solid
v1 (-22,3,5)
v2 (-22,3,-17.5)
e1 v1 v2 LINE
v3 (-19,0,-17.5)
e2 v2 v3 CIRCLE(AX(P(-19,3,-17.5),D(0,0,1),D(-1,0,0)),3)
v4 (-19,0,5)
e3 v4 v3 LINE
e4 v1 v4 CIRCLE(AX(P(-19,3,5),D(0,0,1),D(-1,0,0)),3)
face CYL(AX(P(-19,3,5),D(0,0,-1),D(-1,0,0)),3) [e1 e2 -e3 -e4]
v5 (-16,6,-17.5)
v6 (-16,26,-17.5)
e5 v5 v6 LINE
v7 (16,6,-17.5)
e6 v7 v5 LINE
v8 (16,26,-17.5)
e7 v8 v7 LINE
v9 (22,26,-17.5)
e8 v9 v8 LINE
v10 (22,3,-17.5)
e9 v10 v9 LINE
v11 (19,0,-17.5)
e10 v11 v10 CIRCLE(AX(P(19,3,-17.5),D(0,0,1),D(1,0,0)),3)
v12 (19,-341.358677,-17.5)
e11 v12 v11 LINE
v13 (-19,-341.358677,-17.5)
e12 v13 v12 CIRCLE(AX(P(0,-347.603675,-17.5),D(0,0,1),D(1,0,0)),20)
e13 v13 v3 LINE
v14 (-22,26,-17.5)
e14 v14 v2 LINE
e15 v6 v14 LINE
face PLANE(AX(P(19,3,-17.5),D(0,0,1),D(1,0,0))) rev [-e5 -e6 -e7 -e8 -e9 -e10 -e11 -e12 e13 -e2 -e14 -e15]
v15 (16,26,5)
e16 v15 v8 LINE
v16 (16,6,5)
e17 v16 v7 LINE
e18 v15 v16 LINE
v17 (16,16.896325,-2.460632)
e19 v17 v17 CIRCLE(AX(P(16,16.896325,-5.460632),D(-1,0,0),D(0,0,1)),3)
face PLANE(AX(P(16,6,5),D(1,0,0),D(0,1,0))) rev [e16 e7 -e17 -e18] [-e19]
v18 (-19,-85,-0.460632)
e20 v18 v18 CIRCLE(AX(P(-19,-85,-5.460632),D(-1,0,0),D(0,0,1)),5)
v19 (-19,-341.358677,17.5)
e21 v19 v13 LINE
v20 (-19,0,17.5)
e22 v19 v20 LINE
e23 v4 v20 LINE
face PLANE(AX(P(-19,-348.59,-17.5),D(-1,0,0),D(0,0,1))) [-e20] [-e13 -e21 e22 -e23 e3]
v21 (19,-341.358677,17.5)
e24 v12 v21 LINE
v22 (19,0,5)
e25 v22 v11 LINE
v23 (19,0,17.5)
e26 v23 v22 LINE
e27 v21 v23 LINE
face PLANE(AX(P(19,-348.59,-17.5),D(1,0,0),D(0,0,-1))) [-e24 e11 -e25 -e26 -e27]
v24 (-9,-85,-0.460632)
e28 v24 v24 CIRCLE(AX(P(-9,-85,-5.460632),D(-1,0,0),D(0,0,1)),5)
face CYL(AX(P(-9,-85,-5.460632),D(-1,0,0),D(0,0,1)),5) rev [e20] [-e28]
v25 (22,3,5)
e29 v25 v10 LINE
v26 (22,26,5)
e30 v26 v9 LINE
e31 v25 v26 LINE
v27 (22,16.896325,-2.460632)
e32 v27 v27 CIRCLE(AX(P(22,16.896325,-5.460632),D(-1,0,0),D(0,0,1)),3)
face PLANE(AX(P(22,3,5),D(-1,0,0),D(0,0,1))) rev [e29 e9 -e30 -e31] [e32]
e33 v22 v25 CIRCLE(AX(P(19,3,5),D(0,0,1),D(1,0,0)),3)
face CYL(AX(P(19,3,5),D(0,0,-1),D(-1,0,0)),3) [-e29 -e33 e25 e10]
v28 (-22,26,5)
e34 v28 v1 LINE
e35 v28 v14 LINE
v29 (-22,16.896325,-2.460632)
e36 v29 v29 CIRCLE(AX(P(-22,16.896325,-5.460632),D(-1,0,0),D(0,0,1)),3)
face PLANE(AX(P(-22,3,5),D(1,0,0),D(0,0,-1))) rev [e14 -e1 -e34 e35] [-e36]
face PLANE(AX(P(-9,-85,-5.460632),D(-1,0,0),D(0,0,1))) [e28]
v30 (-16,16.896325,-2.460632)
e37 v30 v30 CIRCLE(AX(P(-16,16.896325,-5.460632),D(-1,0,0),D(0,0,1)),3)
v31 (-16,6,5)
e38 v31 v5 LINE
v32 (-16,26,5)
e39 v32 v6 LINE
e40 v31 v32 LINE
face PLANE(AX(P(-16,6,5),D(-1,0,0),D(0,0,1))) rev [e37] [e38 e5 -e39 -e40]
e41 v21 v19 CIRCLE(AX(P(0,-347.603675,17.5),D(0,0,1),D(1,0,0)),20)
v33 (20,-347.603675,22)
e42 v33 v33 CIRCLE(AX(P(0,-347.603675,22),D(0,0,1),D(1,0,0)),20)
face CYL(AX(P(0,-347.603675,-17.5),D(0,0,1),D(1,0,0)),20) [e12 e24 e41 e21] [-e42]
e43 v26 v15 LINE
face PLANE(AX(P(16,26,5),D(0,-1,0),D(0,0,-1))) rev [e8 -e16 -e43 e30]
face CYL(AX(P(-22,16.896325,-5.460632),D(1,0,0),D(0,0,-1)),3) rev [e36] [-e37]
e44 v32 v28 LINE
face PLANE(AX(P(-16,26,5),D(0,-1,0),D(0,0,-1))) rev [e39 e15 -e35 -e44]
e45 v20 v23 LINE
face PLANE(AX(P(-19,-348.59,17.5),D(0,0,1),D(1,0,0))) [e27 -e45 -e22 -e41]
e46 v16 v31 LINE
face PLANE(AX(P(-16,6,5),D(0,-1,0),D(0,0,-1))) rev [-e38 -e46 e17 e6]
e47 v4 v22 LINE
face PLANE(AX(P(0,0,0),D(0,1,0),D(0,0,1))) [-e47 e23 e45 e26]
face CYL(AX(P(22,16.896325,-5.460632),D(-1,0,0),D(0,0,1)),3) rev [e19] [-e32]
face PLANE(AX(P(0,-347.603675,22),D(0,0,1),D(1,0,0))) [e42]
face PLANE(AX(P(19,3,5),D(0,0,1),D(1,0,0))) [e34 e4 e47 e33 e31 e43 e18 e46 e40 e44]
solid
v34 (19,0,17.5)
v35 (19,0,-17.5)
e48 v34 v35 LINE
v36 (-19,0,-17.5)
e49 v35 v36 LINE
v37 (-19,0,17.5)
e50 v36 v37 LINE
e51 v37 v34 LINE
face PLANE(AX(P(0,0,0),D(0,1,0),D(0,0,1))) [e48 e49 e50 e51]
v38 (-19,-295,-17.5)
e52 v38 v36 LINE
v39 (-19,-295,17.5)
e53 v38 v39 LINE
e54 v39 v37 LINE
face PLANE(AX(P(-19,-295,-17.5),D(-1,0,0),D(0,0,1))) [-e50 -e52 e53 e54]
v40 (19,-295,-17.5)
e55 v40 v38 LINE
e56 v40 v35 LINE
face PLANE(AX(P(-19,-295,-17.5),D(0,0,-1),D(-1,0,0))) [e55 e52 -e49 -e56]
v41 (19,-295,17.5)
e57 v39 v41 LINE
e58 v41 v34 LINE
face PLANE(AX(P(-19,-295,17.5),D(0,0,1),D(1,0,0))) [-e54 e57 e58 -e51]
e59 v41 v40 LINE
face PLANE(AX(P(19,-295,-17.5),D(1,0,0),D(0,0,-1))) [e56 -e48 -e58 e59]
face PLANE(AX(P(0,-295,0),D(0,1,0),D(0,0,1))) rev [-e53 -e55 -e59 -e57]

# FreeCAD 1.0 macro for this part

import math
import FreeCAD as App
import Part
import Sketcher

V = App.Vector


def add_polygon(sketch, points):
    """Adds a closed chain of lines whose ends are joined by coincident constraints."""
    first, n = sketch.GeometryCount, len(points)
    for a, b in zip(points, points[1:] + points[:1]):
        sketch.addGeometry(Part.LineSegment(App.Vector(*a, 0), App.Vector(*b, 0)), False)
    for i in range(n):
        sketch.addConstraint(Sketcher.Constraint("Coincident", first + i, 2, first + (i + 1) % n, 1))

doc = App.newDocument("Part")
body = doc.addObject("PartDesign::Body", "Body")

sketch1 = doc.addObject("Sketcher::SketchObject", "Sketch")
body.addObject(sketch1)
sketch1.AttachmentSupport = (doc.XZ_Plane, [""])
sketch1.MapMode = "FlatFace"
add_polygon(sketch1, [(-19, -18), (-19, 18), (19, 18), (19, -18)])
sketch1.addConstraint([
    Sketcher.Constraint("Vertical", 0),
    Sketcher.Constraint("Horizontal", 1),
    Sketcher.Constraint("Vertical", 2),
    Sketcher.Constraint("Horizontal", 3),
    Sketcher.Constraint("Symmetric", 0, 2, 2, 2, -1, 1),
    Sketcher.Constraint("DistanceX", 1, 1, 1, 2, 38.0),
    Sketcher.Constraint("DistanceY", 0, 1, 0, 2, 35.0),
])
pad1 = doc.addObject("PartDesign::Pad", "Pad")
body.addObject(pad1)
pad1.Profile = sketch1
pad1.Length = 295
body2 = doc.addObject("PartDesign::Body", "Body001")

sketch2 = doc.addObject("Sketcher::SketchObject", "Sketch001")
body2.addObject(sketch2)
sketch2.AttachmentSupport = (doc.getObject("XY_Plane001"), [""])
sketch2.MapMode = "FlatFace"
sketch2.addGeometry([
    Part.LineSegment(V(-19, 0, 0), V(19, 0, 0)),
    Part.ArcOfCircle(Part.Circle(V(19, 3, 0), V(0, 0, 1), 3), math.radians(-90), math.radians(0)),
    Part.LineSegment(V(22, 3, 0), V(22, 26, 0)),
    Part.LineSegment(V(22, 26, 0), V(16, 26, 0)),
    Part.LineSegment(V(16, 26, 0), V(16, 6, 0)),
    Part.LineSegment(V(16, 6, 0), V(-16, 6, 0)),
    Part.LineSegment(V(-16, 6, 0), V(-16, 26, 0)),
    Part.LineSegment(V(-16, 26, 0), V(-22, 26, 0)),
    Part.LineSegment(V(-22, 26, 0), V(-22, 3, 0)),
    Part.ArcOfCircle(Part.Circle(V(-19, 3, 0), V(0, 0, 1), 3), math.radians(180), math.radians(270)),
], False)
sketch2.addConstraint([
    Sketcher.Constraint("Tangent", 0, 2, 1, 1),
    Sketcher.Constraint("Tangent", 1, 2, 2, 1),
    Sketcher.Constraint("Coincident", 2, 2, 3, 1),
    Sketcher.Constraint("Coincident", 3, 2, 4, 1),
    Sketcher.Constraint("Coincident", 4, 2, 5, 1),
    Sketcher.Constraint("Coincident", 5, 2, 6, 1),
    Sketcher.Constraint("Coincident", 6, 2, 7, 1),
    Sketcher.Constraint("Coincident", 7, 2, 8, 1),
    Sketcher.Constraint("Tangent", 8, 2, 9, 1),
    Sketcher.Constraint("Tangent", 9, 2, 0, 1),
    Sketcher.Constraint("Horizontal", 0),
    Sketcher.Constraint("Vertical", 2),
    Sketcher.Constraint("Horizontal", 3),
    Sketcher.Constraint("Vertical", 4),
    Sketcher.Constraint("Horizontal", 5),
    Sketcher.Constraint("Vertical", 6),
    Sketcher.Constraint("Horizontal", 7),
    Sketcher.Constraint("Vertical", 8),
    Sketcher.Constraint("Equal", 1, 9),
    Sketcher.Constraint("Symmetric", 0, 2, 9, 2, -1, 1),
    Sketcher.Constraint("Symmetric", 3, 2, 6, 2, -2),
    Sketcher.Constraint("Radius", 1, 3.0),
    Sketcher.Constraint("DistanceX", 0, 1, 0, 2, 38.0),
    Sketcher.Constraint("DistanceX", 3, 2, 3, 1, 6.0),
    Sketcher.Constraint("DistanceY", 2, 1, 2, 2, 23.0),
    Sketcher.Constraint("DistanceY", 4, 2, 4, 1, 20.0),
])
pad2 = doc.addObject("PartDesign::Pad", "Pad001")
body2.addObject(pad2)
pad2.Profile = sketch2
pad2.Type = "TwoLengths"
pad2.Length = 5
pad2.Length2 = 17.5

sketch3 = doc.addObject("Sketcher::SketchObject", "Sketch002")
body2.addObject(sketch3)
sketch3.AttachmentSupport = (doc.getObject("XZ_Plane001"), [""])
sketch3.MapMode = "FlatFace"
add_polygon(sketch3, [(-19, -18), (-19, 18), (19, 18), (19, -18)])
sketch3.addConstraint([
    Sketcher.Constraint("Vertical", 0),
    Sketcher.Constraint("Horizontal", 1),
    Sketcher.Constraint("Vertical", 2),
    Sketcher.Constraint("Horizontal", 3),
    Sketcher.Constraint("Symmetric", 0, 2, 2, 2, -1, 1),
    Sketcher.Constraint("DistanceX", 1, 1, 1, 2, 38.0),
    Sketcher.Constraint("DistanceY", 0, 1, 0, 2, 35.0),
])
pad3 = doc.addObject("PartDesign::Pad", "Pad002")
body2.addObject(pad3)
pad3.Profile = sketch3
pad3.Length = 348.59

sketch4 = doc.addObject("Sketcher::SketchObject", "Sketch003")
body2.addObject(sketch4)
sketch4.AttachmentSupport = (doc.getObject("YZ_Plane001"), [""])
sketch4.MapMode = "FlatFace"
sketch4.AttachmentOffset = App.Placement(V(0, 0, 22), App.Rotation())
sketch4.addGeometry(Part.Circle(V(16.9, -5.5, 0), V(0, 0, 1), 3), False)
sketch4.addConstraint([
    Sketcher.Constraint("Diameter", 0, 6.0),
    Sketcher.Constraint("DistanceX", -1, 1, 0, 3, 16.896325),
    Sketcher.Constraint("DistanceY", 0, 3, -1, 1, 5.460632),
])
pocket1 = doc.addObject("PartDesign::Pocket", "Pocket")
body2.addObject(pocket1)
pocket1.Profile = sketch4
pocket1.Length = 6
doc.recompute()

mirrored = doc.addObject("PartDesign::Mirrored", "Mirrored")
body2.addObject(mirrored)
mirrored.Originals = [pocket1]
mirrored.MirrorPlane = (doc.getObject("YZ_Plane001"), [""])
body2.Tip = mirrored

sketch5 = doc.addObject("Sketcher::SketchObject", "Sketch004")
body2.addObject(sketch5)
sketch5.AttachmentSupport = (doc.getObject("XY_Plane001"), [""])
sketch5.MapMode = "FlatFace"
sketch5.addGeometry(Part.Circle(V(0, -348, 0), V(0, 0, 1), 20), False)
sketch5.addConstraint([
    Sketcher.Constraint("PointOnObject", 0, 3, -2),
    Sketcher.Constraint("Diameter", 0, 40.0),
    Sketcher.Constraint("DistanceY", 0, 3, -1, 1, 347.603675),
])
pad4 = doc.addObject("PartDesign::Pad", "Pad003")
body2.addObject(pad4)
pad4.Profile = sketch5
pad4.Type = "TwoLengths"
pad4.Length = 22
pad4.Length2 = 17.5

sketch6 = doc.addObject("Sketcher::SketchObject", "Sketch005")
body2.addObject(sketch6)
sketch6.AttachmentSupport = (doc.getObject("YZ_Plane001"), [""])
sketch6.MapMode = "FlatFace"
sketch6.AttachmentOffset = App.Placement(V(0, 0, -19), App.Rotation())
sketch6.addGeometry(Part.Circle(V(-85, -5, 0), V(0, 0, 1), 5), False)
sketch6.addConstraint([
    Sketcher.Constraint("Diameter", 0, 10.0),
    Sketcher.Constraint("DistanceX", 0, 3, -1, 1, 85.0),
    Sketcher.Constraint("DistanceY", 0, 3, -1, 1, 5.460632),
])
pocket2 = doc.addObject("PartDesign::Pocket", "Pocket001")
body2.addObject(pocket2)
pocket2.Profile = sketch6
pocket2.Length = 10
pocket2.Reversed = True

doc.recompute()
